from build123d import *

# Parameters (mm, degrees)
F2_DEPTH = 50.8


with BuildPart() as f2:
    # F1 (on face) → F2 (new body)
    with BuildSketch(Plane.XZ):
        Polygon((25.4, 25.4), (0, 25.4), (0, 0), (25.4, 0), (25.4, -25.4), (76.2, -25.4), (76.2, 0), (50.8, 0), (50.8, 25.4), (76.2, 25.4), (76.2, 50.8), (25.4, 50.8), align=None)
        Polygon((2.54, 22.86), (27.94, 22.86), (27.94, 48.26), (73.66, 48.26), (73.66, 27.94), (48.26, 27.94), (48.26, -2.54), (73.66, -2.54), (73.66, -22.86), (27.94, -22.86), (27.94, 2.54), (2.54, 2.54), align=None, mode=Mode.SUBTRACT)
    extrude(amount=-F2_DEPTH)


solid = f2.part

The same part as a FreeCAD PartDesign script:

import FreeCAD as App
import Part
import Sketcher

V = App.Vector
Q = App.Units.Quantity

doc = App.newDocument("Part")
body = doc.addObject("PartDesign::Body", "Body")

# Sketch on XZ plane
sketch1 = body.newObject("Sketcher::SketchObject", "Sketch")
sketch1.AttachmentSupport = (doc.getObject("XZ_Plane"), [""])
sketch1.MapMode = "FlatFace"
sketch1.addGeometry(Part.LineSegment(V(25, 25, 0), V(0, 25, 0)), False)
sketch1.addGeometry(Part.LineSegment(V(0, 25, 0), V(0, 0, 0)), False)
sketch1.addGeometry(Part.LineSegment(V(0, 0, 0), V(25, 0, 0)), False)
sketch1.addGeometry(Part.LineSegment(V(25, 0, 0), V(25, -25, 0)), False)
sketch1.addGeometry(Part.LineSegment(V(25, -25, 0), V(76, -25, 0)), False)
sketch1.addGeometry(Part.LineSegment(V(76, -25, 0), V(76, 0, 0)), False)
sketch1.addGeometry(Part.LineSegment(V(76, 0, 0), V(51, 0, 0)), False)
sketch1.addGeometry(Part.LineSegment(V(51, 0, 0), V(51, 25, 0)), False)
sketch1.addGeometry(Part.LineSegment(V(51, 25, 0), V(76, 25, 0)), False)
sketch1.addGeometry(Part.LineSegment(V(76, 25, 0), V(76, 51, 0)), False)
sketch1.addGeometry(Part.LineSegment(V(76, 51, 0), V(25, 51, 0)), False)
sketch1.addGeometry(Part.LineSegment(V(25, 51, 0), V(25, 25, 0)), False)
sketch1.addGeometry(Part.LineSegment(V(3, 3, 0), V(3, 23, 0)), False)
sketch1.addGeometry(Part.LineSegment(V(3, 23, 0), V(28, 23, 0)), False)
sketch1.addGeometry(Part.LineSegment(V(28, 23, 0), V(28, 48, 0)), False)
sketch1.addGeometry(Part.LineSegment(V(28, 48, 0), V(74, 48, 0)), False)
sketch1.addGeometry(Part.LineSegment(V(74, 48, 0), V(74, 28, 0)), False)
sketch1.addGeometry(Part.LineSegment(V(74, 28, 0), V(48, 28, 0)), False)
sketch1.addGeometry(Part.LineSegment(V(48, 28, 0), V(48, -3, 0)), False)
sketch1.addGeometry(Part.LineSegment(V(48, -3, 0), V(74, -3, 0)), False)
sketch1.addGeometry(Part.LineSegment(V(74, -3, 0), V(74, -23, 0)), False)
sketch1.addGeometry(Part.LineSegment(V(74, -23, 0), V(28, -23, 0)), False)
sketch1.addGeometry(Part.LineSegment(V(28, -23, 0), V(28, 3, 0)), False)
sketch1.addGeometry(Part.LineSegment(V(28, 3, 0), V(3, 3, 0)), False)
sketch1.addConstraint(Sketcher.Constraint("Coincident", 0, 2, 1, 1))
sketch1.addConstraint(Sketcher.Constraint("Coincident", 1, 2, 2, 1))
sketch1.addConstraint(Sketcher.Constraint("Coincident", 2, 2, 3, 1))
sketch1.addConstraint(Sketcher.Constraint("Coincident", 3, 2, 4, 1))
sketch1.addConstraint(Sketcher.Constraint("Coincident", 4, 2, 5, 1))
sketch1.addConstraint(Sketcher.Constraint("Coincident", 5, 2, 6, 1))
sketch1.addConstraint(Sketcher.Constraint("Coincident", 6, 2, 7, 1))
sketch1.addConstraint(Sketcher.Constraint("Coincident", 7, 2, 8, 1))
sketch1.addConstraint(Sketcher.Constraint("Coincident", 8, 2, 9, 1))
sketch1.addConstraint(Sketcher.Constraint("Coincident", 9, 2, 10, 1))
sketch1.addConstraint(Sketcher.Constraint("Coincident", 10, 2, 11, 1))
sketch1.addConstraint(Sketcher.Constraint("Coincident", 11, 2, 0, 1))
sketch1.addConstraint(Sketcher.Constraint("Coincident", 12, 2, 13, 1))
sketch1.addConstraint(Sketcher.Constraint("Coincident", 13, 2, 14, 1))
sketch1.addConstraint(Sketcher.Constraint("Coincident", 14, 2, 15, 1))
sketch1.addConstraint(Sketcher.Constraint("Coincident", 15, 2, 16, 1))
sketch1.addConstraint(Sketcher.Constraint("Coincident", 16, 2, 17, 1))
sketch1.addConstraint(Sketcher.Constraint("Coincident", 17, 2, 18, 1))
sketch1.addConstraint(Sketcher.Constraint("Coincident", 18, 2, 19, 1))
sketch1.addConstraint(Sketcher.Constraint("Coincident", 19, 2, 20, 1))
sketch1.addConstraint(Sketcher.Constraint("Coincident", 20, 2, 21, 1))
sketch1.addConstraint(Sketcher.Constraint("Coincident", 21, 2, 22, 1))
sketch1.addConstraint(Sketcher.Constraint("Coincident", 22, 2, 23, 1))
sketch1.addConstraint(Sketcher.Constraint("Coincident", 23, 2, 12, 1))
sketch1.addConstraint(Sketcher.Constraint("Horizontal", 0))
sketch1.addConstraint(Sketcher.Constraint("Vertical", 1))
sketch1.addConstraint(Sketcher.Constraint("Horizontal", 2))
sketch1.addConstraint(Sketcher.Constraint("Vertical", 3))
sketch1.addConstraint(Sketcher.Constraint("Horizontal", 4))
sketch1.addConstraint(Sketcher.Constraint("Vertical", 5))
sketch1.addConstraint(Sketcher.Constraint("Horizontal", 6))
sketch1.addConstraint(Sketcher.Constraint("Vertical", 7))
sketch1.addConstraint(Sketcher.Constraint("Horizontal", 8))
sketch1.addConstraint(Sketcher.Constraint("Vertical", 9))
sketch1.addConstraint(Sketcher.Constraint("Horizontal", 10))
sketch1.addConstraint(Sketcher.Constraint("Vertical", 11))
sketch1.addConstraint(Sketcher.Constraint("Vertical", 12))
sketch1.addConstraint(Sketcher.Constraint("Horizontal", 13))
sketch1.addConstraint(Sketcher.Constraint("Vertical", 14))
sketch1.addConstraint(Sketcher.Constraint("Horizontal", 15))
sketch1.addConstraint(Sketcher.Constraint("Vertical", 16))
sketch1.addConstraint(Sketcher.Constraint("Horizontal", 17))
sketch1.addConstraint(Sketcher.Constraint("Vertical", 18))
sketch1.addConstraint(Sketcher.Constraint("Horizontal", 19))
sketch1.addConstraint(Sketcher.Constraint("Vertical", 20))
sketch1.addConstraint(Sketcher.Constraint("Horizontal", 21))
sketch1.addConstraint(Sketcher.Constraint("Vertical", 22))
sketch1.addConstraint(Sketcher.Constraint("Horizontal", 23))
sketch1.addConstraint(Sketcher.Constraint("Coincident", 1, 2, -1, 1))
sketch1.addConstraint(Sketcher.Constraint("Symmetric", 4, 2, 8, 2, -1))
sketch1.addConstraint(Sketcher.Constraint("Symmetric", 3, 2, 11, 2, -1))
sketch1.addConstraint(Sketcher.Constraint("Symmetric", 13, 2, 21, 2, -1))
sketch1.addConstraint(Sketcher.Constraint("PointOnObject", 5, 2, -1))
sketch1.addConstraint(Sketcher.Constraint("Vertical", 16, 2, 19, 2))
sketch1.addConstraint(Sketcher.Constraint("Equal", 2, 6))
sketch1.addConstraint(Sketcher.Constraint("Equal", 8, 13))
sketch1.addConstraint(Sketcher.Constraint("Equal", 13, 17))
sketch1.addConstraint(Sketcher.Constraint("Equal", 23, 1))
sketch1.addConstraint(Sketcher.Constraint("Equal", 7, 9))
sketch1.addConstraint(Sketcher.Constraint("Equal", 11, 14))
sketch1.addConstraint(Sketcher.Constraint("Equal", 12, 16))
sketch1.addConstraint(Sketcher.Constraint("Equal", 16, 20))
sketch1.addConstraint(Sketcher.Constraint("Equal", 14, 22))
sketch1.addConstraint(Sketcher.Constraint("DistanceX", 0, 2, 0, 1, Q("1 in")))
sketch1.addConstraint(Sketcher.Constraint("DistanceX", 4, 1, 4, 2, Q("2 in")))
sketch1.addConstraint(Sketcher.Constraint("DistanceX", 15, 1, 15, 2, Q("1.8 in")))
sketch1.addConstraint(Sketcher.Constraint("DistanceY", 12, 1, 12, 2, Q("0.8 in")))
sketch1.addConstraint(Sketcher.Constraint("DistanceX", -1, 1, 12, 2, Q("0.1 in")))
pad1 = body.newObject("PartDesign::Pad", "Pad")
pad1.Profile = sketch1
pad1.Length = Q("2 in")
pad1.Reversed = True

doc.recompute()
